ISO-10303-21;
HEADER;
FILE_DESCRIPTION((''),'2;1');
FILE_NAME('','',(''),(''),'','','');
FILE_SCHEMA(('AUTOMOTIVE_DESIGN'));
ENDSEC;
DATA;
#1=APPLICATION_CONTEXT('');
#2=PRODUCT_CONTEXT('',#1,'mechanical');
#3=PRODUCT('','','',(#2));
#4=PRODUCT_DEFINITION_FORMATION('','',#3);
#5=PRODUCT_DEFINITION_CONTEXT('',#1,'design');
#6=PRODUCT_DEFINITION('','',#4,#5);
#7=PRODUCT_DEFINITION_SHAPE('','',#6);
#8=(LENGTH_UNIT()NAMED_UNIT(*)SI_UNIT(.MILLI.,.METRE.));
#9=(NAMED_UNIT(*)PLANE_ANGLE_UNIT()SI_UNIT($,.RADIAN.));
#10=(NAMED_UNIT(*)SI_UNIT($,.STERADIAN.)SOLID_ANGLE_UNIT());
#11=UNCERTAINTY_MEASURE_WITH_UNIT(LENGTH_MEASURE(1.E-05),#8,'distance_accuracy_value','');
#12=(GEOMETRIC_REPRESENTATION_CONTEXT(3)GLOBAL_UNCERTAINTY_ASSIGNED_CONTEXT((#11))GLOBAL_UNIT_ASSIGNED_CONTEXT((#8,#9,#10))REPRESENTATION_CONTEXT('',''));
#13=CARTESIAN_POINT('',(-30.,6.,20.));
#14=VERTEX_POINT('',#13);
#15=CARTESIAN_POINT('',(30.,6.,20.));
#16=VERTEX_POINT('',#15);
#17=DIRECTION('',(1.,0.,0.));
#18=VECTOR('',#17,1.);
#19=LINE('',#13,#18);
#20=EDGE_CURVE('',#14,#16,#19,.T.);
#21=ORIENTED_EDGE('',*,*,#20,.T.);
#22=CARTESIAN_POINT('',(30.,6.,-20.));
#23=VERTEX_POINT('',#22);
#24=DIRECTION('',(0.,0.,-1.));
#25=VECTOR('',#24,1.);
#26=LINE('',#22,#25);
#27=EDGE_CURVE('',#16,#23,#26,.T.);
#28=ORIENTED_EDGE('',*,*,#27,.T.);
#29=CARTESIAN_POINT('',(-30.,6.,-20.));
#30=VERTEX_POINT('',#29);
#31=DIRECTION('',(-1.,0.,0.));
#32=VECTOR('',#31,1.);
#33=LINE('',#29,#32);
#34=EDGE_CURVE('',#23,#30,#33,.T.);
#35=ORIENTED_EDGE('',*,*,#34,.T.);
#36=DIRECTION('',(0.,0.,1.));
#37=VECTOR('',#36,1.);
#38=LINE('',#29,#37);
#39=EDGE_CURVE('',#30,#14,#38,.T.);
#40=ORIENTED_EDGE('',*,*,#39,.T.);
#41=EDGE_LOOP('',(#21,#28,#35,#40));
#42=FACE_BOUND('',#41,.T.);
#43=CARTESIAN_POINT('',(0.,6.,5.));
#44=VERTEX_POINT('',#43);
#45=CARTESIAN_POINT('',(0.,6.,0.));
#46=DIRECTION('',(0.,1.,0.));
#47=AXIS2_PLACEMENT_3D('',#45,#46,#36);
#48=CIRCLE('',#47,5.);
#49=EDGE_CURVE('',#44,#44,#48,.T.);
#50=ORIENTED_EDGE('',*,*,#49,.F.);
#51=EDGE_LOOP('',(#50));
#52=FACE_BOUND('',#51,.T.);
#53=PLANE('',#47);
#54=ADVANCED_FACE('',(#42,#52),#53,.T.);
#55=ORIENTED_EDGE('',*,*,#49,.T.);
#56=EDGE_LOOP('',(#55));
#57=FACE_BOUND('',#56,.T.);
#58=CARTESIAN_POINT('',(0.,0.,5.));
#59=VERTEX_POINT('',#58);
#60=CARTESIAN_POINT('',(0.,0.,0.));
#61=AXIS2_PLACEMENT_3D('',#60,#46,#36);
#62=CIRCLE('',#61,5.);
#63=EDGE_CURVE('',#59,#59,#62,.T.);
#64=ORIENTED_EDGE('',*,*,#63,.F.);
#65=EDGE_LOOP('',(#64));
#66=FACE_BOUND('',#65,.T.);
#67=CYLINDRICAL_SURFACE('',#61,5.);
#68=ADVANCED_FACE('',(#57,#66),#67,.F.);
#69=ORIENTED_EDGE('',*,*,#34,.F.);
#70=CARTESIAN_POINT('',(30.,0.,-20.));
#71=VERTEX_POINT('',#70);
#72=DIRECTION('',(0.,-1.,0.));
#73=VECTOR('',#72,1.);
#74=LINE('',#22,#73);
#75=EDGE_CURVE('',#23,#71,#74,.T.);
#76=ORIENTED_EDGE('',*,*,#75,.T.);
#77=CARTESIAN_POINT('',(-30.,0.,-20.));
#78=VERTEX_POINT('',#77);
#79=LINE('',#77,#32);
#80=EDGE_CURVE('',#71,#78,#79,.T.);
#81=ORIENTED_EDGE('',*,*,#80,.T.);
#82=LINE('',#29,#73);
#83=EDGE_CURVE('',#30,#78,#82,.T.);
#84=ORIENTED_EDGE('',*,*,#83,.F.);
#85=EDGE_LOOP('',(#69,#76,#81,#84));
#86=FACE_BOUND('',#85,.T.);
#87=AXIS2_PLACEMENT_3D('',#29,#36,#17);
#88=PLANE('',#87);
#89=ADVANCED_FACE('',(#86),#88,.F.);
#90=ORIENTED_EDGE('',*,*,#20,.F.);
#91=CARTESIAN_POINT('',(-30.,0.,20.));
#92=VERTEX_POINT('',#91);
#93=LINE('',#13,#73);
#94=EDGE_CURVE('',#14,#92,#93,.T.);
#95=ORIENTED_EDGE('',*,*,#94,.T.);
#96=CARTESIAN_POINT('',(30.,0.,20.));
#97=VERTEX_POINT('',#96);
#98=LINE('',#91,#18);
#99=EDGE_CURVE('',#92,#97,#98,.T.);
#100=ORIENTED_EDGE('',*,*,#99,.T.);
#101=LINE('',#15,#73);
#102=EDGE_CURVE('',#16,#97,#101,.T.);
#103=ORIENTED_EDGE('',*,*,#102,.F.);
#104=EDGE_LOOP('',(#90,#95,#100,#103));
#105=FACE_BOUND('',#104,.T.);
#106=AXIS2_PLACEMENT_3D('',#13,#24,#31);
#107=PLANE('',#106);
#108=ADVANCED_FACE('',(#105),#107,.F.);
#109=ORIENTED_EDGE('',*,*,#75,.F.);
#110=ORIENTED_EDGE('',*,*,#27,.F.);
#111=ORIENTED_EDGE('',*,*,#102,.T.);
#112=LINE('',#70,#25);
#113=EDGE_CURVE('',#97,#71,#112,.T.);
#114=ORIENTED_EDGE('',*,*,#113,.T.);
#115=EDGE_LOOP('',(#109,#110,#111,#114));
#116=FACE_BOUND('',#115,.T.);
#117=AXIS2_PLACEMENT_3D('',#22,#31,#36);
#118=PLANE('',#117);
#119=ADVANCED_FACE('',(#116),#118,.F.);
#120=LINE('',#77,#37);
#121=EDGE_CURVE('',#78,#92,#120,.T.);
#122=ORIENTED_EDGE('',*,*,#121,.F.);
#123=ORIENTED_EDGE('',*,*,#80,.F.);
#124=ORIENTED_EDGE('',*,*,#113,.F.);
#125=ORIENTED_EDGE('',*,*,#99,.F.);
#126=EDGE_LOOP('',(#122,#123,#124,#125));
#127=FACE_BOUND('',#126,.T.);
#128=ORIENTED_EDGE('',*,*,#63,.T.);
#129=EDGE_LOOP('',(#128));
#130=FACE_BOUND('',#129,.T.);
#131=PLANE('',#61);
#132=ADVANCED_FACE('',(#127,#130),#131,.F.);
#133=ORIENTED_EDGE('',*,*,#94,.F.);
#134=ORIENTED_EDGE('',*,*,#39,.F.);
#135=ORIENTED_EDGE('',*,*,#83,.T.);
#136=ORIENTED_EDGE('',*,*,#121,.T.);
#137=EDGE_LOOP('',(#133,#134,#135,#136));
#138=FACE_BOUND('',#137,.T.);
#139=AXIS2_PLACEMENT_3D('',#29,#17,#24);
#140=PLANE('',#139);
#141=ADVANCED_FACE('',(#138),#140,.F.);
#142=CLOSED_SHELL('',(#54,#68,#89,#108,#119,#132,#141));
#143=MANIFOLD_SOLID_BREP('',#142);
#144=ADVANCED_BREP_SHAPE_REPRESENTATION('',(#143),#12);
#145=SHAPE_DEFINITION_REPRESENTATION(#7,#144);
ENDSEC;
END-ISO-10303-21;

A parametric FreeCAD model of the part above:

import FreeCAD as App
import Part
import Sketcher

V = App.Vector
Q = App.Units.Quantity


def add_polygon(sketch, points):
    """Adds a closed chain of lines whose ends are joined by coincident constraints."""
    first, n = sketch.GeometryCount, len(points)
    for a, b in zip(points, points[1:] + points[:1]):
        sketch.addGeometry(Part.LineSegment(App.Vector(*a, 0), App.Vector(*b, 0)), False)
    for i in range(n):
        sketch.addConstraint(Sketcher.Constraint("Coincident", first + i, 2, first + (i + 1) % n, 1))

doc = App.newDocument("Part")
params = doc.addObject("Spreadsheet::Sheet", "Params")
for row, (alias, value) in enumerate([
    ("sketch1_width", "60 mm"),
    ("sketch1_height", "40 mm"),
    ("pad1_length", "6 mm"),
    ("sketch2_diameter", "10 mm"),
    ("pocket1_length", "6 mm"),
], start=1):
    params.set(f"A{row}", alias)
    params.set(f"B{row}", "=" + value)
    params.setAlias(f"B{row}", alias)

body = doc.addObject("PartDesign::Body", "Body")

# Sketch on XZ plane
sketch1 = doc.addObject("Sketcher::SketchObject", "Sketch")
body.addObject(sketch1)
sketch1.AttachmentSupport = (doc.XZ_Plane, [""])
sketch1.MapMode = "FlatFace"
add_polygon(sketch1, [(-30, -20), (-30, 20), (30, 20), (30, -20)])  # lines 0-3
sketch1.addConstraint(Sketcher.Constraint("Vertical", 0))
sketch1.addConstraint(Sketcher.Constraint("Horizontal", 1))
sketch1.addConstraint(Sketcher.Constraint("Vertical", 2))
sketch1.addConstraint(Sketcher.Constraint("Horizontal", 3))
sketch1.addConstraint(Sketcher.Constraint("Symmetric", 0, 2, 2, 2, -1, 1))
sketch1.addConstraint(Sketcher.Constraint("DistanceX", 1, 1, 1, 2, Q("60 mm")))
sketch1.addConstraint(Sketcher.Constraint("DistanceY", 0, 1, 0, 2, Q("40 mm")))
sketch1.setExpression("Constraints[9]", "Params.sketch1_width")
sketch1.setExpression("Constraints[10]", "Params.sketch1_height")
pad1 = doc.addObject("PartDesign::Pad", "Pad")
body.addObject(pad1)
pad1.Profile = sketch1
pad1.setExpression("Length", "Params.pad1_length")
pad1.Reversed = True

# Sketch on XZ plane
sketch2 = doc.addObject("Sketcher::SketchObject", "Sketch001")
body.addObject(sketch2)
sketch2.AttachmentSupport = (doc.XZ_Plane, [""])
sketch2.MapMode = "FlatFace"
sketch2.AttachmentOffset = App.Placement(V(0, 0, -6), App.Rotation())
sketch2.addGeometry(Part.Circle(V(0, 0, 0), V(0, 0, 1), 5), False)
sketch2.addConstraint(Sketcher.Constraint("Coincident", 0, 3, -1, 1))
sketch2.addConstraint(Sketcher.Constraint("Diameter", 0, Q("10 mm")))
sketch2.setExpression("Constraints[1]", "Params.sketch2_diameter")
pocket1 = doc.addObject("PartDesign::Pocket", "Pocket")
body.addObject(pocket1)
pocket1.Profile = sketch2
pocket1.setExpression("Length", "Params.pocket1_length")
pocket1.Reversed = True

doc.recompute()
